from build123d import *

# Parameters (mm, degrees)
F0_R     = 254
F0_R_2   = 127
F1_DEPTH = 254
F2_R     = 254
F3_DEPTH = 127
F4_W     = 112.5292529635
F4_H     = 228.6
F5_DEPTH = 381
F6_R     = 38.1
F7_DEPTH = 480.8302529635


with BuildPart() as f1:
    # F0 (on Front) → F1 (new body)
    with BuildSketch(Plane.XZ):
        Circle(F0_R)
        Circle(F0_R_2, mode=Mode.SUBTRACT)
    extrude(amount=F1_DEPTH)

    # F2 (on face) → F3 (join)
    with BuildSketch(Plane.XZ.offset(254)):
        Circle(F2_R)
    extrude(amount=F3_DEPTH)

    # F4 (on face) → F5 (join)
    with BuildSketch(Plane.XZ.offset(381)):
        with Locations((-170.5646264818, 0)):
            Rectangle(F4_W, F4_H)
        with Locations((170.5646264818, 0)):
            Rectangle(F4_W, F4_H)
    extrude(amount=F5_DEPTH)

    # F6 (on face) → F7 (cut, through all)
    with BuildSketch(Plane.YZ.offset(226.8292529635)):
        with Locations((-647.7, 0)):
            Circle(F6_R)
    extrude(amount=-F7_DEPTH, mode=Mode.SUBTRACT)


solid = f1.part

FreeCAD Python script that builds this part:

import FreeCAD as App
import Part
import Sketcher
Q = App.Units.Quantity

doc = App.newDocument("Part")
body = doc.addObject("PartDesign::Body", "Body")

sketch1 = body.newObject("Sketcher::SketchObject", "Sketch")
sketch1.AttachmentSupport = (doc.getObject("XZ_Plane"), [""])
sketch1.MapMode = "FlatFace"
sketch1.addGeometry([
    Part.Circle(App.Vector(0, 0, 0), App.Vector(0, 0, 1), 254),
    Part.Circle(App.Vector(0, 0, 0), App.Vector(0, 0, 1), 127),
], False)
sketch1.addConstraint([
    Sketcher.Constraint("Coincident", 0, 3, -1, 1),
    Sketcher.Constraint("Coincident", 1, 3, -1, 1),
    Sketcher.Constraint("Diameter", 0, Q("20 in")),
    Sketcher.Constraint("Diameter", 1, Q("10 in")),
])
pad1 = body.newObject("PartDesign::Pad", "Pad")
pad1.Profile = sketch1
pad1.Length = Q("10 in")

sketch2 = body.newObject("Sketcher::SketchObject", "Sketch001")
sketch2.AttachmentSupport = (doc.getObject("XZ_Plane"), [""])
sketch2.MapMode = "FlatFace"
sketch2.AttachmentOffset = App.Placement(App.Vector(0, 0, 10 * 25.4), App.Rotation())
sketch2.addGeometry(Part.Circle(App.Vector(0, 0, 0), App.Vector(0, 0, 1), 254), False)
sketch2.addConstraint([
    Sketcher.Constraint("Coincident", 0, 3, -1, 1),
    Sketcher.Constraint("Diameter", 0, Q("20 in")),
])
pad2 = body.newObject("PartDesign::Pad", "Pad001")
pad2.Profile = sketch2
pad2.Length = Q("5 in")

sketch3 = body.newObject("Sketcher::SketchObject", "Sketch002")
sketch3.AttachmentSupport = (doc.getObject("XZ_Plane"), [""])
sketch3.MapMode = "FlatFace"
sketch3.AttachmentOffset = App.Placement(App.Vector(0, 0, 15 * 25.4), App.Rotation())
sketch3.addGeometry([
    Part.LineSegment(App.Vector(-227, 114, 0), App.Vector(-227, -114, 0)),
    Part.LineSegment(App.Vector(-227, -114, 0), App.Vector(-114, -114, 0)),
    Part.LineSegment(App.Vector(-114, -114, 0), App.Vector(-114, 114, 0)),
    Part.LineSegment(App.Vector(-114, 114, 0), App.Vector(-227, 114, 0)),
    Part.LineSegment(App.Vector(114, 114, 0), App.Vector(114, -114, 0)),
    Part.LineSegment(App.Vector(114, -114, 0), App.Vector(227, -114, 0)),
    Part.LineSegment(App.Vector(227, -114, 0), App.Vector(227, 114, 0)),
    Part.LineSegment(App.Vector(227, 114, 0), App.Vector(114, 114, 0)),
], False)
sketch3.addConstraint([
    Sketcher.Constraint("Coincident", 0, 2, 1, 1),
    Sketcher.Constraint("Coincident", 1, 2, 2, 1),
    Sketcher.Constraint("Coincident", 2, 2, 3, 1),
    Sketcher.Constraint("Coincident", 3, 2, 0, 1),
    Sketcher.Constraint("Coincident", 4, 2, 5, 1),
    Sketcher.Constraint("Coincident", 5, 2, 6, 1),
    Sketcher.Constraint("Coincident", 6, 2, 7, 1),
    Sketcher.Constraint("Coincident", 7, 2, 4, 1),
    Sketcher.Constraint("Vertical", 0),
    Sketcher.Constraint("Horizontal", 1),
    Sketcher.Constraint("Vertical", 2),
    Sketcher.Constraint("Horizontal", 3),
    Sketcher.Constraint("Vertical", 4),
    Sketcher.Constraint("Horizontal", 5),
    Sketcher.Constraint("Vertical", 6),
    Sketcher.Constraint("Horizontal", 7),
    Sketcher.Constraint("Symmetric", 2, 2, 4, 2, -1, 1),
    Sketcher.Constraint("Symmetric", 0, 2, 6, 2, -1, 1),
    Sketcher.Constraint("Horizontal", 1, 2, 4, 2),
    Sketcher.Constraint("DistanceY", 0, 2, 0, 1, Q("9 in")),
    Sketcher.Constraint("DistanceX", 1, 2, 4, 2, Q("9 in")),
    Sketcher.Constraint("DistanceX", 1, 1, 1, 2, Q("112.529253 mm")),
])
pad3 = body.newObject("PartDesign::Pad", "Pad002")
pad3.Profile = sketch3
pad3.Length = Q("15 in")

sketch4 = body.newObject("Sketcher::SketchObject", "Sketch003")
sketch4.AttachmentSupport = (doc.getObject("YZ_Plane"), [""])
sketch4.MapMode = "FlatFace"
sketch4.AttachmentOffset = App.Placement(App.Vector(0, 0, 226.829253), App.Rotation())
sketch4.addGeometry(Part.Circle(App.Vector(-648, 0, 0), App.Vector(0, 0, 1), 38), False)
sketch4.addConstraint([
    Sketcher.Constraint("PointOnObject", 0, 3, -1),
    Sketcher.Constraint("Diameter", 0, Q("3 in")),
    Sketcher.Constraint("DistanceX", 0, 3, -1, 1, Q("25.5 in")),
])
pocket1 = body.newObject("PartDesign::Pocket", "Pocket")
pocket1.Profile = sketch4
pocket1.Type = "ThroughAll"

doc.recompute()
